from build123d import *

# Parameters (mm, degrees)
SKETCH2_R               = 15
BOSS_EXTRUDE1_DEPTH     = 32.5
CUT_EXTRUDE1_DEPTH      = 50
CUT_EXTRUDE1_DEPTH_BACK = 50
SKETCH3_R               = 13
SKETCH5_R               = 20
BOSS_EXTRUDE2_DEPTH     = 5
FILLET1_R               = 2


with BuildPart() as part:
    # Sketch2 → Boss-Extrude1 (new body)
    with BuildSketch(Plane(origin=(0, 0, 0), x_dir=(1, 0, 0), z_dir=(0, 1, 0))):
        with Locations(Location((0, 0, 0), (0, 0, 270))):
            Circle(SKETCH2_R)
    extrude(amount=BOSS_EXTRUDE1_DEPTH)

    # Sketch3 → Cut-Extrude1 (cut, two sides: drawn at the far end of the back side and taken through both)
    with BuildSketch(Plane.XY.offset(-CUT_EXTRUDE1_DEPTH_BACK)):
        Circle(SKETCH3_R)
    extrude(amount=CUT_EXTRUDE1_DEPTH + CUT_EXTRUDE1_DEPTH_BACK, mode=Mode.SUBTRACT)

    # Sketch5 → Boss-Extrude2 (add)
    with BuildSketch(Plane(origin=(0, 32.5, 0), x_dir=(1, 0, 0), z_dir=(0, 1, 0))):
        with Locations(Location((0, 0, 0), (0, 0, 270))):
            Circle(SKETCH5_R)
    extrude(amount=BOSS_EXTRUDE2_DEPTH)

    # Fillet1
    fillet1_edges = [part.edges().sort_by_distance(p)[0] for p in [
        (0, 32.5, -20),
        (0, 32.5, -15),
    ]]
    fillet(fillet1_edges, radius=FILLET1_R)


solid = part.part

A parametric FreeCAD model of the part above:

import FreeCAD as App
import Part
import Sketcher
from FreeCAD import Vector


def edges_at(feature, points):
    """Names of the edges that pass closest to the given points."""
    edges = feature.Shape.Edges
    near = lambda p: min(range(len(edges)), key=lambda i: edges[i].distToShape(Part.Vertex(*p))[0])
    return sorted({f"Edge{near(p) + 1}" for p in points})

doc = App.newDocument("Part")
body = doc.addObject("PartDesign::Body", "Body")

# Sketch on XZ plane
sketch1 = body.newObject("Sketcher::SketchObject", "Sketch")
sketch1.AttachmentSupport = (doc.getObject("XZ_Plane"), [""])
sketch1.MapMode = "FlatFace"
sketch1.addGeometry(Part.Circle(Vector(0, 0, 0), Vector(0, 0, 1), 15), False)
sketch1.addConstraint(Sketcher.Constraint("Coincident", 0, 3, -1, 1))
sketch1.addConstraint(Sketcher.Constraint("Diameter", 0, 30.0))
pad1 = body.newObject("PartDesign::Pad", "Pad")
pad1.Profile = sketch1
pad1.Length = 32.5
pad1.Reversed = True

# Sketch on XY plane
sketch2 = body.newObject("Sketcher::SketchObject", "Sketch001")
sketch2.AttachmentSupport = (doc.getObject("XY_Plane"), [""])
sketch2.MapMode = "FlatFace"
sketch2.addGeometry(Part.Circle(Vector(0, 0, 0), Vector(0, 0, 1), 13), False)
sketch2.addConstraint(Sketcher.Constraint("Coincident", 0, 3, -1, 1))
sketch2.addConstraint(Sketcher.Constraint("Diameter", 0, 26.0))
pocket1 = body.newObject("PartDesign::Pocket", "Pocket")
pocket1.Profile = sketch2
pocket1.Type = "ThroughAll"
pocket1.Midplane = True

# Sketch on XZ plane
sketch3 = body.newObject("Sketcher::SketchObject", "Sketch002")
sketch3.AttachmentSupport = (doc.getObject("XZ_Plane"), [""])
sketch3.MapMode = "FlatFace"
sketch3.AttachmentOffset = App.Placement(Vector(0, 0, -32.5), App.Rotation())
sketch3.addGeometry(Part.Circle(Vector(0, 0, 0), Vector(0, 0, 1), 20), False)
sketch3.addConstraint(Sketcher.Constraint("Coincident", 0, 3, -1, 1))
sketch3.addConstraint(Sketcher.Constraint("Diameter", 0, 40.0))
pad2 = body.newObject("PartDesign::Pad", "Pad001")
pad2.Profile = sketch3
pad2.Length = 5
pad2.Reversed = True
doc.recompute()

fillet = body.newObject("PartDesign::Fillet", "Fillet")
fillet.Base = (pad2, edges_at(pad2, [(0, 32.5, -20), (0, 32.5, -15)]))
fillet.Radius = 2

doc.recompute()
